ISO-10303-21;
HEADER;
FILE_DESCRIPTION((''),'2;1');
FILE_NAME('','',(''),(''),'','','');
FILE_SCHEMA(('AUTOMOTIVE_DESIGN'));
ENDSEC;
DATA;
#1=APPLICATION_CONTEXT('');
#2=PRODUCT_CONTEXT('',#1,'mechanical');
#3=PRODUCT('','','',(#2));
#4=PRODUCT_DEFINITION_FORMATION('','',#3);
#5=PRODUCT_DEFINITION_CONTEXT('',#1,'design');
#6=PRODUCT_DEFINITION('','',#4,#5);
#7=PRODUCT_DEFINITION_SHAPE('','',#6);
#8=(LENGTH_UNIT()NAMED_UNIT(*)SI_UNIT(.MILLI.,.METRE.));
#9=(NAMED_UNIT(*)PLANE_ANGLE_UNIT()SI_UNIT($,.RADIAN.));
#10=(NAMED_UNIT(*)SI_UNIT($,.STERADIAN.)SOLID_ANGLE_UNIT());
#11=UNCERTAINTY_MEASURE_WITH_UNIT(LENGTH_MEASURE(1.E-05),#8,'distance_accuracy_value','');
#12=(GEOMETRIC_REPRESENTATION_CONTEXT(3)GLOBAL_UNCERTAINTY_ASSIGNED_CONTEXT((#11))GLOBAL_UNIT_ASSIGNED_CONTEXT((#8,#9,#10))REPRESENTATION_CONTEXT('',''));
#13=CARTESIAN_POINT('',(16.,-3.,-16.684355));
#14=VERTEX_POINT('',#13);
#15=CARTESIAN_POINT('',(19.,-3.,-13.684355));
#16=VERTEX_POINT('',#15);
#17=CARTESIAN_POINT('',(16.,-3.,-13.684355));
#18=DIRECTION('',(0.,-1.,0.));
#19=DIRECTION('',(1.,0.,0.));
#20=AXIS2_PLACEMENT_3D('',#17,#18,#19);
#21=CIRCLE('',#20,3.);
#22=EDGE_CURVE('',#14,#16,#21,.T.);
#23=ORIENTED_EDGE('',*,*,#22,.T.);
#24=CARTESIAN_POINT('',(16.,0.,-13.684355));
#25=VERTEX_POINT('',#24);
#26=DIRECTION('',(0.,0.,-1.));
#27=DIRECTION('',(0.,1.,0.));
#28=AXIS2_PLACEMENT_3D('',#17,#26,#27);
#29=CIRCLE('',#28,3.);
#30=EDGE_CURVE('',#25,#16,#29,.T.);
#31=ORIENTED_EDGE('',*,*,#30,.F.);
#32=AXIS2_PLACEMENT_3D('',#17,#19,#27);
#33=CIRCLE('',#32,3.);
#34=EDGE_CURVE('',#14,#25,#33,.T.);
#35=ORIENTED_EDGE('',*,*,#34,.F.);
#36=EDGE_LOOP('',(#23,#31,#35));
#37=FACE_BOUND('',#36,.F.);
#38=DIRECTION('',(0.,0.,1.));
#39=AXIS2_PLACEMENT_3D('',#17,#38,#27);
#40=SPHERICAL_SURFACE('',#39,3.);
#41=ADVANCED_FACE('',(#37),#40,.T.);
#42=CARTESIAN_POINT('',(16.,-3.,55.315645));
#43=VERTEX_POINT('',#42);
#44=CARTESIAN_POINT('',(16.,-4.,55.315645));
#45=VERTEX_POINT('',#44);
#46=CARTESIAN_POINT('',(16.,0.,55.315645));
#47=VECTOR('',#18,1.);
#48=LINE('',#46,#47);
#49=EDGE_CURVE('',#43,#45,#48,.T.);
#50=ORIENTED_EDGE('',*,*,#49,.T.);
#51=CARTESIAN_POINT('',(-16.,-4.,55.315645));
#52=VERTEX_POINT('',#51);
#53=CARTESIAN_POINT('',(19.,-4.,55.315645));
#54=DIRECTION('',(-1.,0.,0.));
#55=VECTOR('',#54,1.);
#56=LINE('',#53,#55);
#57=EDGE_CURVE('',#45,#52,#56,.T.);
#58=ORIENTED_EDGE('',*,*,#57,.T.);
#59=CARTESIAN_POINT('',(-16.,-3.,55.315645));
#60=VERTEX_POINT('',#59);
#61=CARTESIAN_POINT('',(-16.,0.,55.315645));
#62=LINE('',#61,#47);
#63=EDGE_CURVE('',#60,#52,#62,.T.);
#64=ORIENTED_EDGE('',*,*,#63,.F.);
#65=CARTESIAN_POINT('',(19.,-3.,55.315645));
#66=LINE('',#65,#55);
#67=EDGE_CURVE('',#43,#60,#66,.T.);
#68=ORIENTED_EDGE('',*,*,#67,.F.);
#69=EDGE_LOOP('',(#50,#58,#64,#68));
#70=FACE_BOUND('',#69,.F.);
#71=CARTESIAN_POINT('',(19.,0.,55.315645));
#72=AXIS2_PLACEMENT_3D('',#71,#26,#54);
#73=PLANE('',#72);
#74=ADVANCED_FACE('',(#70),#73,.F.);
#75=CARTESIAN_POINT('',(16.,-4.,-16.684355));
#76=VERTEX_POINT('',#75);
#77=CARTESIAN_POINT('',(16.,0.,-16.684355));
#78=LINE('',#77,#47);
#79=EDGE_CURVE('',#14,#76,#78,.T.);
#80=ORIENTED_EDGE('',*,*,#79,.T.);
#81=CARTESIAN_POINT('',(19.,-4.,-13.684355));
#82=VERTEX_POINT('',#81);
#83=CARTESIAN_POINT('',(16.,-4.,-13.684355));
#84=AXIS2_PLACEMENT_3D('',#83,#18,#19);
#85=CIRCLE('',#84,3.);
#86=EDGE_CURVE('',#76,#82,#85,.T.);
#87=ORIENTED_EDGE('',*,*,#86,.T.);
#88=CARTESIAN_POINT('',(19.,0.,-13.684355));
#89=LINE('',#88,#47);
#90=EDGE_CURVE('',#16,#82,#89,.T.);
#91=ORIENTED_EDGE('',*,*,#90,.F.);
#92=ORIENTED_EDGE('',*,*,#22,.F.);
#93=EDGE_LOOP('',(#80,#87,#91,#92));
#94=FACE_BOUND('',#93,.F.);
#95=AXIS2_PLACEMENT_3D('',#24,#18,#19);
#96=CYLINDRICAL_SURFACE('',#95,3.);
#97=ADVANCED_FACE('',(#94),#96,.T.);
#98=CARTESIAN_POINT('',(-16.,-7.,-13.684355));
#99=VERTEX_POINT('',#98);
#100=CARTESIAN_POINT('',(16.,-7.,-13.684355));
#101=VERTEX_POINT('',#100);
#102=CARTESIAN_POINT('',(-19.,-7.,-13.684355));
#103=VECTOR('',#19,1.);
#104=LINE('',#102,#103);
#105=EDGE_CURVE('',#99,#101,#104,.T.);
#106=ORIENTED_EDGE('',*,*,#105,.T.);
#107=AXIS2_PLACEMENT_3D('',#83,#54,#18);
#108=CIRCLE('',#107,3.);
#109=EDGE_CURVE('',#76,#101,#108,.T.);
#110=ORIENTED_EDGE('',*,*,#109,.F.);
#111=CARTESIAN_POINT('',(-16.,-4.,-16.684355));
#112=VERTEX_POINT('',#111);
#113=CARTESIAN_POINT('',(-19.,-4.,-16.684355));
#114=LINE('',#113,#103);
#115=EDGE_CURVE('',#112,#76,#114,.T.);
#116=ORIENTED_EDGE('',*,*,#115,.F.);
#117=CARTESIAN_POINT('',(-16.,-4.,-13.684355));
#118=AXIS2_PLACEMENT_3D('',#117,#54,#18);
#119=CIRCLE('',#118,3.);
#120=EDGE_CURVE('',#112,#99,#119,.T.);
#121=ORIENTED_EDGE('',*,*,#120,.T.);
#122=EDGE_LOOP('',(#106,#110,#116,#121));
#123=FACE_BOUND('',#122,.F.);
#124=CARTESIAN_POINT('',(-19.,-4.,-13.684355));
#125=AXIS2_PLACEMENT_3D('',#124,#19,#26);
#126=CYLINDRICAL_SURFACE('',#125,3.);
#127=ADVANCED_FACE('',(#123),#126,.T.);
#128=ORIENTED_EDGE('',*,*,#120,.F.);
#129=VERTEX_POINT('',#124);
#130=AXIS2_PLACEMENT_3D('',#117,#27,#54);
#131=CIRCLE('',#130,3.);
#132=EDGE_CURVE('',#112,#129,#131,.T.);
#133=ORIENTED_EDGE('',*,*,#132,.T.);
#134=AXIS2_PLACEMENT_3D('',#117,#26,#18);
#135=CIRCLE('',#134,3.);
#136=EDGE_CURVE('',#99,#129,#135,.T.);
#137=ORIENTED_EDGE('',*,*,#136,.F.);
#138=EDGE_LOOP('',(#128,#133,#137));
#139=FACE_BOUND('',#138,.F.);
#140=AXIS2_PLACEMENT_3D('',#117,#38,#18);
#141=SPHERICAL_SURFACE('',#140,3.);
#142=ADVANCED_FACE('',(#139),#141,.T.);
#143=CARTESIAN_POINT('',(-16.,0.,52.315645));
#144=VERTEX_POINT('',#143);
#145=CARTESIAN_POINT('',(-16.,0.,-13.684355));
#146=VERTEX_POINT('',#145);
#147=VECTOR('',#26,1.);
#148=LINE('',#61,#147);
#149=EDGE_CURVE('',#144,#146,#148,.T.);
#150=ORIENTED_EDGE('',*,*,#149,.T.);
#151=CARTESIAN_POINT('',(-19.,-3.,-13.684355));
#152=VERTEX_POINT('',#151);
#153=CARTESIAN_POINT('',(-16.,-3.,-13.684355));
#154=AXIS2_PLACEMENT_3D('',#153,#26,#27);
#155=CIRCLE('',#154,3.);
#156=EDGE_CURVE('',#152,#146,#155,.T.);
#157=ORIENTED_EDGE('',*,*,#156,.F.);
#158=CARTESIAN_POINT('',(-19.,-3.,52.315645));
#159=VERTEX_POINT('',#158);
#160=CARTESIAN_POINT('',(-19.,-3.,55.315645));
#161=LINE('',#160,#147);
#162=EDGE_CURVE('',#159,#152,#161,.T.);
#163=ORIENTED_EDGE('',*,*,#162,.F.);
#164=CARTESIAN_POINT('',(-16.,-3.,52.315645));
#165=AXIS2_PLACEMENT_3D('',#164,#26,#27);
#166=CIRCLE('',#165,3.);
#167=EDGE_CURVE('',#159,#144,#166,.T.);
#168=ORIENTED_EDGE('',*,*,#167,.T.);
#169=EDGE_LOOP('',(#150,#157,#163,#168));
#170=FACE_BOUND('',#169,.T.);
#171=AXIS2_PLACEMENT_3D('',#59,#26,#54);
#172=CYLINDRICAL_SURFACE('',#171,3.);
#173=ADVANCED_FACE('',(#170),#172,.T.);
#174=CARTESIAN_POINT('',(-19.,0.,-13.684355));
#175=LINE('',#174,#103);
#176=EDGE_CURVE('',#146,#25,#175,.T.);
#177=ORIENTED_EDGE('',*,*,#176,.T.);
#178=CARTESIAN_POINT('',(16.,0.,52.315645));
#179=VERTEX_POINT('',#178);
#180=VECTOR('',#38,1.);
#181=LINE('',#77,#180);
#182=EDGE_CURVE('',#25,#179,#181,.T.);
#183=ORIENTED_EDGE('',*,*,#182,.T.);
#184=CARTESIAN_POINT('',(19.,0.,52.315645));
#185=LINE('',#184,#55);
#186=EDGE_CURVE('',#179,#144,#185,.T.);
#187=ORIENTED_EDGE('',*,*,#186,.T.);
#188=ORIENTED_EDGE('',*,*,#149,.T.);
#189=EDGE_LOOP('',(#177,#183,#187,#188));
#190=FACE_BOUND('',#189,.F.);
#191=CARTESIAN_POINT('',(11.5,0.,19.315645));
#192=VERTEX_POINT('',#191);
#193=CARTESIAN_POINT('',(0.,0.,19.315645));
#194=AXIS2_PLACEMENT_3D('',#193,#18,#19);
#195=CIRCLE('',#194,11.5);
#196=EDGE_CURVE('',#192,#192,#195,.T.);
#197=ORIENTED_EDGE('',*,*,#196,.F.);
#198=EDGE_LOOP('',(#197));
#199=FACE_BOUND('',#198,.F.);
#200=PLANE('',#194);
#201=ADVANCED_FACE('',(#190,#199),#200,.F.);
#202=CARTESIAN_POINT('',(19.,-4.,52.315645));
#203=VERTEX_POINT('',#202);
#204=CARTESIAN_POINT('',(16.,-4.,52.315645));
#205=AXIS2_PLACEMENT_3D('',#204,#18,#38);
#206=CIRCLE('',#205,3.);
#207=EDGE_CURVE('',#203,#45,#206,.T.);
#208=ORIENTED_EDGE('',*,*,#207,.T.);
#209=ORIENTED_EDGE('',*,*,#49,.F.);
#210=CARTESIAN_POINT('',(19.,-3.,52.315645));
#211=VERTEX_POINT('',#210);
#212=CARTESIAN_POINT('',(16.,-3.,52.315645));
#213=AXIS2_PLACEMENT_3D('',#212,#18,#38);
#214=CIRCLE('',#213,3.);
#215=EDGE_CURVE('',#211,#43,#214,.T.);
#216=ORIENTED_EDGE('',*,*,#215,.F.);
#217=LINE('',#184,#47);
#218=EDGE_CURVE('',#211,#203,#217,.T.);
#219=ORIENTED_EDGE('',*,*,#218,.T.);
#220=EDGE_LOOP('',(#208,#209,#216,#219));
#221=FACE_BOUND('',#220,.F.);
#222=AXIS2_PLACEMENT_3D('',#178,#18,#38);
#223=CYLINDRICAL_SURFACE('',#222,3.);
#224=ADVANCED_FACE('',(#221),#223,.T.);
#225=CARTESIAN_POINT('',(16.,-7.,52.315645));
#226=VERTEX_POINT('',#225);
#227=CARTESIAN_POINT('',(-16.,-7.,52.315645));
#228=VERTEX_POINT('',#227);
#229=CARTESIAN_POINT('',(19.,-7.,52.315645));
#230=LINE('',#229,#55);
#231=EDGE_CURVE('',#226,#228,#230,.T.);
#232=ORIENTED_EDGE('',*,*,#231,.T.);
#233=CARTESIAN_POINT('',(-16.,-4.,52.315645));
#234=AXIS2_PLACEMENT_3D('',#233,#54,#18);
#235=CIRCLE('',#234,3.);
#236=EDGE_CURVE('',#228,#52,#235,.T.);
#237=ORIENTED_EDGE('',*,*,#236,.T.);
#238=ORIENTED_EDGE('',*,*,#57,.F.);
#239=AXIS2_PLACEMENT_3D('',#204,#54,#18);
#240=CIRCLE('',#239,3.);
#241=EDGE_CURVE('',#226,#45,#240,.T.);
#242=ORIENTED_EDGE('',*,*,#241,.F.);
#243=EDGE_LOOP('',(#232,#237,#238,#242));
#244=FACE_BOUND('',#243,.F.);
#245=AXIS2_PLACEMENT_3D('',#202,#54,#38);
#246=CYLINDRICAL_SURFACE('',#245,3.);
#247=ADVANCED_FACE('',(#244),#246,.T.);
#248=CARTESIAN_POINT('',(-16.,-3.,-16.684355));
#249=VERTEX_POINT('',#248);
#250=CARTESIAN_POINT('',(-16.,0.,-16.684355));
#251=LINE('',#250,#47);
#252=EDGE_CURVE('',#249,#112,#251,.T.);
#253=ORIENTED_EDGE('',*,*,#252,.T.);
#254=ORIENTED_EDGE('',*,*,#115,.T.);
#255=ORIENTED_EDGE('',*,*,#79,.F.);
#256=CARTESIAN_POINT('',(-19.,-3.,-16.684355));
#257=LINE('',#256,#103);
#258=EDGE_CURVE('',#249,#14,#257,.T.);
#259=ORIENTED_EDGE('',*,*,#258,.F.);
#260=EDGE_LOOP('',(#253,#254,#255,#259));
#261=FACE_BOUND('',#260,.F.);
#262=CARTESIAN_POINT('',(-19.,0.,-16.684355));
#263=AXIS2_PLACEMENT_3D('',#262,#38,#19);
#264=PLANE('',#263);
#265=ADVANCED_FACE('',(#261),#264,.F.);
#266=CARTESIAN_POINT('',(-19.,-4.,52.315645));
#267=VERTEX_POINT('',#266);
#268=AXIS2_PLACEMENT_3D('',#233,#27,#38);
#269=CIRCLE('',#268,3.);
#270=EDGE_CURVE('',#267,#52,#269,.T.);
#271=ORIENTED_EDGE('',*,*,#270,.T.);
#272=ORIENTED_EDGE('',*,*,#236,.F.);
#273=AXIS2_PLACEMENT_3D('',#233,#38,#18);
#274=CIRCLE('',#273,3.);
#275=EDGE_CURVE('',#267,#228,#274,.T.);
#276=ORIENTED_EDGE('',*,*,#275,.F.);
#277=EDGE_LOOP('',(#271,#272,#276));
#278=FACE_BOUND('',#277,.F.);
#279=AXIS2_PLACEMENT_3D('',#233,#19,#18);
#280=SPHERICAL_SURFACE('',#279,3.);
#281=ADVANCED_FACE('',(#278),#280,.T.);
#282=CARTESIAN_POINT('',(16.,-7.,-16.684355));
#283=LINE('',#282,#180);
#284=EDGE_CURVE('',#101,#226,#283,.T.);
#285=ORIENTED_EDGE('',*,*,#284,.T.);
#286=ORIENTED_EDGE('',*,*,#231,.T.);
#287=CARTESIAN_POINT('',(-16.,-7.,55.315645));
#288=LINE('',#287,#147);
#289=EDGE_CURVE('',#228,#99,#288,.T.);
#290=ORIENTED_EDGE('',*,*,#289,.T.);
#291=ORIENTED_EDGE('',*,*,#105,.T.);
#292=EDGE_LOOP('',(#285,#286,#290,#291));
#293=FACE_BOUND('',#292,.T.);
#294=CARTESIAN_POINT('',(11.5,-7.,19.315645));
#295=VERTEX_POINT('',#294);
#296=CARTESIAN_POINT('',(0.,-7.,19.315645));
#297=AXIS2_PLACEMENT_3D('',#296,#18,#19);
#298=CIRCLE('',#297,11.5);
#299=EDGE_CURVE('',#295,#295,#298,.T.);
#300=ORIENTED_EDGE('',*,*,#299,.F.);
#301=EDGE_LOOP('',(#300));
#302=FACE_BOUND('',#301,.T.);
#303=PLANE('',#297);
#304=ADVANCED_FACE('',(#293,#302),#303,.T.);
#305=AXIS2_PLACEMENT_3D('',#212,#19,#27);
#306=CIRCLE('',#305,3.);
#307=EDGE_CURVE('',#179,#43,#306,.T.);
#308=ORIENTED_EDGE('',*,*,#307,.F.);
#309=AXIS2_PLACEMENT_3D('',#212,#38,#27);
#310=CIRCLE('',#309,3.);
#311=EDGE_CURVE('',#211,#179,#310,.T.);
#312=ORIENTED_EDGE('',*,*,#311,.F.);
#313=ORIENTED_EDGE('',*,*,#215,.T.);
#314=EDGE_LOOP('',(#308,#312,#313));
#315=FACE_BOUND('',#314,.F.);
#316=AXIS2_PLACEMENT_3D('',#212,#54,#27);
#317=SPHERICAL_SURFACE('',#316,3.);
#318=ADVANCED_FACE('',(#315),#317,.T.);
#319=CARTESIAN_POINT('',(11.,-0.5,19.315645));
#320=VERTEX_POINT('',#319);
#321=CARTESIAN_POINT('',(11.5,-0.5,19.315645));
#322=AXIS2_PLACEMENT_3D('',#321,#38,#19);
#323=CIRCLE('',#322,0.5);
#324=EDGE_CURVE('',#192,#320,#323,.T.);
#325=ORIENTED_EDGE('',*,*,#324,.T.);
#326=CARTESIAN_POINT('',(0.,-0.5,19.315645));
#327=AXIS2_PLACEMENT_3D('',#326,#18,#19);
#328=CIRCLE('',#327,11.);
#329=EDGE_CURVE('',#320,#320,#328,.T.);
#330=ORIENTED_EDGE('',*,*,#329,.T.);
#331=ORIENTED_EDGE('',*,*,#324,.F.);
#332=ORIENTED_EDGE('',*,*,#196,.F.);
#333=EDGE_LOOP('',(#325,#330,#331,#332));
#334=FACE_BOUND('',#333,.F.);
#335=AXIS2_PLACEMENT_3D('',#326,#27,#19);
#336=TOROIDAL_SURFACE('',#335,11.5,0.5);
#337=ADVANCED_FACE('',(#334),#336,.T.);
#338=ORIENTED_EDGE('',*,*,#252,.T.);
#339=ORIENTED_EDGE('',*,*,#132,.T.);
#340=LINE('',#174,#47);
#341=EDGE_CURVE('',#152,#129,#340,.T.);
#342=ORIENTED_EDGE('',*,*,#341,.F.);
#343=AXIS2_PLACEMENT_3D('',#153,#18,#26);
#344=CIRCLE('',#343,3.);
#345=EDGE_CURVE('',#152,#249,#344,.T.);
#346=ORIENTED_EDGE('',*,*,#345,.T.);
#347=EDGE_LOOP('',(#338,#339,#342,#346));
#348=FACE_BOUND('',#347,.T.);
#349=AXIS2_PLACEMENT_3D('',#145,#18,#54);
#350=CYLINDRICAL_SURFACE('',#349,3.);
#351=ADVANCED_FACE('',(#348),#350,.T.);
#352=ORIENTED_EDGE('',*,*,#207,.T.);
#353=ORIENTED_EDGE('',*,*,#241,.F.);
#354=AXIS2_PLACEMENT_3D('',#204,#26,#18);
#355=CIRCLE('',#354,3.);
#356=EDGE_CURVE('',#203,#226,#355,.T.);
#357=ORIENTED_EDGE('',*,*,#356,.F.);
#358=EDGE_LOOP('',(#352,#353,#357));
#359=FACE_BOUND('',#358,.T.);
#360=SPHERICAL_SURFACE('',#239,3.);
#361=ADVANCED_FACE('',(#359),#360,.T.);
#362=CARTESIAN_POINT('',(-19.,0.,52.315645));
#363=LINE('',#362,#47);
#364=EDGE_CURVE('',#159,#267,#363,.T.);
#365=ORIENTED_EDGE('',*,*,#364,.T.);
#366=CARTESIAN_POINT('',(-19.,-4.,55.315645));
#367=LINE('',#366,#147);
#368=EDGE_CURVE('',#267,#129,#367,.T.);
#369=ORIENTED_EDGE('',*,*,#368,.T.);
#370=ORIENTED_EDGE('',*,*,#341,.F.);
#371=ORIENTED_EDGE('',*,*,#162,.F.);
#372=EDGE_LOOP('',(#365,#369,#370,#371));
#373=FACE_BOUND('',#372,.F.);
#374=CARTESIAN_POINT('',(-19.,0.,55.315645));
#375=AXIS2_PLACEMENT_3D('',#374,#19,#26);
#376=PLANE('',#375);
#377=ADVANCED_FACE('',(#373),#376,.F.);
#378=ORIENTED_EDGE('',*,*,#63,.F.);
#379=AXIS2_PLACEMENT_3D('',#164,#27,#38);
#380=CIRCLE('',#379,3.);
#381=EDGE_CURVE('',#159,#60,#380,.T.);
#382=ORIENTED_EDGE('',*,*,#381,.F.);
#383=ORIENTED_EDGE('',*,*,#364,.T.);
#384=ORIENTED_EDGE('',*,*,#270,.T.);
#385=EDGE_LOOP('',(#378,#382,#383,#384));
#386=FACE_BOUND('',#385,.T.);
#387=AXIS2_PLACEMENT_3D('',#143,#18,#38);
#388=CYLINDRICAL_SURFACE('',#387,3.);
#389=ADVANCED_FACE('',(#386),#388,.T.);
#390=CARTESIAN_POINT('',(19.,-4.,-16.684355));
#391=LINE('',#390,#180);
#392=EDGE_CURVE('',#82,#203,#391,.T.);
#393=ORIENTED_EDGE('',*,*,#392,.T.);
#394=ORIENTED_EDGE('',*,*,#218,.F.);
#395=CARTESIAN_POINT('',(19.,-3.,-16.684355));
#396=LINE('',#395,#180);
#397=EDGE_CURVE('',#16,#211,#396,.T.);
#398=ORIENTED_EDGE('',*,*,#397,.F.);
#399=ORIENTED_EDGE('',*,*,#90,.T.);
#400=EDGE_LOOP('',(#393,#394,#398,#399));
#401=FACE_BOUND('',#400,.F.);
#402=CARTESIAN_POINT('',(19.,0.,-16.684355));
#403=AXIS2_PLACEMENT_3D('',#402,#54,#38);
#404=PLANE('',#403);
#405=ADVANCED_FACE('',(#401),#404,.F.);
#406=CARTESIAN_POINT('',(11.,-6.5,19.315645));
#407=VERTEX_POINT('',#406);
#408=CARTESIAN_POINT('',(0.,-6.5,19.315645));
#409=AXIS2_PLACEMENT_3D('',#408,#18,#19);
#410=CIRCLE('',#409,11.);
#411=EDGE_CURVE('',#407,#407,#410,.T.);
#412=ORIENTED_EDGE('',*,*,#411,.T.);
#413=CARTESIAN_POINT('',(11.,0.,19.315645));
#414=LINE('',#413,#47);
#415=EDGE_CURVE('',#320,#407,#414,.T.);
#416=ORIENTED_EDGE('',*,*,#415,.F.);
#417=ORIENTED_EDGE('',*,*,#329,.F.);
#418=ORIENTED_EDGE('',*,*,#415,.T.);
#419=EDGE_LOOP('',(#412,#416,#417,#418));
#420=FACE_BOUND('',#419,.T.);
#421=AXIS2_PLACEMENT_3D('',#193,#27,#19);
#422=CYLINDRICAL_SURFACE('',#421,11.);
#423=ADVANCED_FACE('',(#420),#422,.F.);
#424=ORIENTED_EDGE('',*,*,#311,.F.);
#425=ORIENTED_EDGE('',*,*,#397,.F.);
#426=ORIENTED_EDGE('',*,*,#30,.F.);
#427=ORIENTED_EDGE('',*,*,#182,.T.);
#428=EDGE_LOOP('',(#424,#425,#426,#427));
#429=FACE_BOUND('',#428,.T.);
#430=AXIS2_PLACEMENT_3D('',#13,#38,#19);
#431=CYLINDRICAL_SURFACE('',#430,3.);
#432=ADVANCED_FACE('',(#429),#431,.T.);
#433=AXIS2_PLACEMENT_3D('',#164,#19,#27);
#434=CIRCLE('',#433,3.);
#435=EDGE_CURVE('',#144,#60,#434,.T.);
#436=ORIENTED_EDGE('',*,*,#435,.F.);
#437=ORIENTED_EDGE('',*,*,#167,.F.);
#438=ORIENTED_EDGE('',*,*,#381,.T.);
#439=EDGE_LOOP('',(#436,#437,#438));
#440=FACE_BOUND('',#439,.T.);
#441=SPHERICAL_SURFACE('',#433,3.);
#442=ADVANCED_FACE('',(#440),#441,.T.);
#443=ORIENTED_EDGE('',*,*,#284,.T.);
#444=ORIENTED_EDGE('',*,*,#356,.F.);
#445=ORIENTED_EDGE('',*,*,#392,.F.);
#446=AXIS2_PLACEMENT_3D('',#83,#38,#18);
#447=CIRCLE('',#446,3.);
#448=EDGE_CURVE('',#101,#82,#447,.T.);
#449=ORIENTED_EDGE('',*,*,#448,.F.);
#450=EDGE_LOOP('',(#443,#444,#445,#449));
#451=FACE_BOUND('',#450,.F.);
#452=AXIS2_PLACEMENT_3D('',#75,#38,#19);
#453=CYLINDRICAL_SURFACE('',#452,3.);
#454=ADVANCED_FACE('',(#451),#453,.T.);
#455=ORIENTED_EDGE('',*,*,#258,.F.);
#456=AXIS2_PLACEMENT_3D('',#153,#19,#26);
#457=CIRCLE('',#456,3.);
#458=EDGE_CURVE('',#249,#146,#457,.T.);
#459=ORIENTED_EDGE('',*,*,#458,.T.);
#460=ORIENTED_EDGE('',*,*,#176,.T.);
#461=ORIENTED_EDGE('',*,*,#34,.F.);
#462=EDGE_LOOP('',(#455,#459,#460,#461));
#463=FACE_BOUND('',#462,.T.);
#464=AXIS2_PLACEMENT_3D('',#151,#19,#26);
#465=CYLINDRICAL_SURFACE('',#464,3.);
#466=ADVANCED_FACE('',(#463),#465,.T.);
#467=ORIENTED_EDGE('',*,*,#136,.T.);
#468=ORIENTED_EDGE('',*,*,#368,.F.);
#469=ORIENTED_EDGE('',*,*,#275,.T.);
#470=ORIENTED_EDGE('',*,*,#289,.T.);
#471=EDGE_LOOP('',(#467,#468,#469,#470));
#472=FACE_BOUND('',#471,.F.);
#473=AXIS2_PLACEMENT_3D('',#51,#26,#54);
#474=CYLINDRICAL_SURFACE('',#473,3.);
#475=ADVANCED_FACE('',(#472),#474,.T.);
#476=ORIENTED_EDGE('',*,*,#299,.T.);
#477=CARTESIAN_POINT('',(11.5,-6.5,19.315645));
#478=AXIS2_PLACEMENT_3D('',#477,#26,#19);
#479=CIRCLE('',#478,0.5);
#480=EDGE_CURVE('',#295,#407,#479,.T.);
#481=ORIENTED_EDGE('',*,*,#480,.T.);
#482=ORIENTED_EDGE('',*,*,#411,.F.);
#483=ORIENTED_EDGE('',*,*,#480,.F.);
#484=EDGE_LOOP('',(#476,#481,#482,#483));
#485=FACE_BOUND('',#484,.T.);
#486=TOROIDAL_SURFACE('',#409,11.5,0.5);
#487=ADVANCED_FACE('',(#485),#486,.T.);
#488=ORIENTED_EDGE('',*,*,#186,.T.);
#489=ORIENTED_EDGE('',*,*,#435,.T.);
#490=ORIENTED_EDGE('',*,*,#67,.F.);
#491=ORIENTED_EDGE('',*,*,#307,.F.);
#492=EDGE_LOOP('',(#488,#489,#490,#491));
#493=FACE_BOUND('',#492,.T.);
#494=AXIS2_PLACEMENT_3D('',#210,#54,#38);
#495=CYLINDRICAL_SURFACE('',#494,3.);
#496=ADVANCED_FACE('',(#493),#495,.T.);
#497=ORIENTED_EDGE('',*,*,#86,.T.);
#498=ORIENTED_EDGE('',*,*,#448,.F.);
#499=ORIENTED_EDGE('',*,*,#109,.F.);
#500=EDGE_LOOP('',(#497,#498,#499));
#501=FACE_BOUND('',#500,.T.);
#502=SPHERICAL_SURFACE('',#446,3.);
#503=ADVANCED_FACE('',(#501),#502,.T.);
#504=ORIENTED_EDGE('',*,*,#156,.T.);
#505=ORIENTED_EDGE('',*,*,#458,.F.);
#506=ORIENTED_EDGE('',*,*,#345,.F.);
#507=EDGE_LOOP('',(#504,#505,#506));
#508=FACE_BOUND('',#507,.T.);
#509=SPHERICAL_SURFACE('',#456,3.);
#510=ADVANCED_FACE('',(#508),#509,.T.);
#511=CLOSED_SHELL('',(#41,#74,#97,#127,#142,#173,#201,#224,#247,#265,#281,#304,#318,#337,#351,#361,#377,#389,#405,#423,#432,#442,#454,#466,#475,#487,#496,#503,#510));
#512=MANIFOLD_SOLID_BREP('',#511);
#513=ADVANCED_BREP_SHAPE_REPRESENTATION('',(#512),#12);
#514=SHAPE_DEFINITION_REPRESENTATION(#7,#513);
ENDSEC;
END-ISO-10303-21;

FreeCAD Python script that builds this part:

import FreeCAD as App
import Part
import Sketcher

V = App.Vector


def edges_at(feature, points):
    """Names of the edges that pass closest to the given points."""
    edges = feature.Shape.Edges
    near = lambda p: min(range(len(edges)), key=lambda i: edges[i].distToShape(Part.Vertex(*p))[0])
    return sorted({f"Edge{near(p) + 1}" for p in points})


def add_polygon(sketch, points):
    """Adds a closed chain of lines whose ends are joined by coincident constraints."""
    first, n = sketch.GeometryCount, len(points)
    for a, b in zip(points, points[1:] + points[:1]):
        sketch.addGeometry(Part.LineSegment(App.Vector(*a, 0), App.Vector(*b, 0)), False)
    for i in range(n):
        sketch.addConstraint(Sketcher.Constraint("Coincident", first + i, 2, first + (i + 1) % n, 1))

doc = App.newDocument("Part")
body = doc.addObject("PartDesign::Body", "Body")

sketch1 = body.newObject("Sketcher::SketchObject", "Sketch")
sketch1.AttachmentSupport = (doc.getObject("XZ_Plane"), [""])
sketch1.MapMode = "FlatFace"
add_polygon(sketch1, [(19, 55), (-19, 55), (-19, -17), (19, -17)])
sketch1.addGeometry(Part.Circle(V(0, 19, 0), V(0, 0, 1), 11), False)
sketch1.addConstraint([
    Sketcher.Constraint("Horizontal", 0),
    Sketcher.Constraint("Vertical", 1),
    Sketcher.Constraint("Horizontal", 2),
    Sketcher.Constraint("Vertical", 3),
    Sketcher.Constraint("PointOnObject", 4, 3, -2),
    Sketcher.Constraint("Diameter", 4, 22.0),
    Sketcher.Constraint("DistanceX", 0, 2, 0, 1, 38.0),
    Sketcher.Constraint("DistanceY", 1, 2, 1, 1, 72.0),
    Sketcher.Constraint("DistanceX", 0, 2, -1, 1, 19.0),
    Sketcher.Constraint("DistanceY", 4, 3, 0, 2, 36.0),
    Sketcher.Constraint("DistanceY", -1, 1, 4, 3, 19.315645),
])
pad1 = body.newObject("PartDesign::Pad", "Pad")
pad1.Profile = sketch1
pad1.Length = 7
doc.recompute()

fillet = body.newObject("PartDesign::Fillet", "Fillet")
fillet.Base = (pad1, edges_at(pad1, [
    (0, -7, 55.316),
    (0, 0, 55.316),
    (19, 0, 19.316),
    (-19, -7, 19.316),
    (19, -7, 19.316),
    (0, -7, -16.684),
    (0, 0, -16.684),
    (19, -3.5, -16.684),
    (-19, -3.5, -16.684),
    (-19, 0, 19.316),
    (-19, -3.5, 55.316),
    (19, -3.5, 55.316),
]))
fillet.Radius = 3
doc.recompute()

fillet2 = body.newObject("PartDesign::Fillet", "Fillet001")
fillet2.Base = (fillet, edges_at(fillet, [(-11, -7, 19.316), (-11, 0, 19.316)]))
fillet2.Radius = 0.5

doc.recompute()
